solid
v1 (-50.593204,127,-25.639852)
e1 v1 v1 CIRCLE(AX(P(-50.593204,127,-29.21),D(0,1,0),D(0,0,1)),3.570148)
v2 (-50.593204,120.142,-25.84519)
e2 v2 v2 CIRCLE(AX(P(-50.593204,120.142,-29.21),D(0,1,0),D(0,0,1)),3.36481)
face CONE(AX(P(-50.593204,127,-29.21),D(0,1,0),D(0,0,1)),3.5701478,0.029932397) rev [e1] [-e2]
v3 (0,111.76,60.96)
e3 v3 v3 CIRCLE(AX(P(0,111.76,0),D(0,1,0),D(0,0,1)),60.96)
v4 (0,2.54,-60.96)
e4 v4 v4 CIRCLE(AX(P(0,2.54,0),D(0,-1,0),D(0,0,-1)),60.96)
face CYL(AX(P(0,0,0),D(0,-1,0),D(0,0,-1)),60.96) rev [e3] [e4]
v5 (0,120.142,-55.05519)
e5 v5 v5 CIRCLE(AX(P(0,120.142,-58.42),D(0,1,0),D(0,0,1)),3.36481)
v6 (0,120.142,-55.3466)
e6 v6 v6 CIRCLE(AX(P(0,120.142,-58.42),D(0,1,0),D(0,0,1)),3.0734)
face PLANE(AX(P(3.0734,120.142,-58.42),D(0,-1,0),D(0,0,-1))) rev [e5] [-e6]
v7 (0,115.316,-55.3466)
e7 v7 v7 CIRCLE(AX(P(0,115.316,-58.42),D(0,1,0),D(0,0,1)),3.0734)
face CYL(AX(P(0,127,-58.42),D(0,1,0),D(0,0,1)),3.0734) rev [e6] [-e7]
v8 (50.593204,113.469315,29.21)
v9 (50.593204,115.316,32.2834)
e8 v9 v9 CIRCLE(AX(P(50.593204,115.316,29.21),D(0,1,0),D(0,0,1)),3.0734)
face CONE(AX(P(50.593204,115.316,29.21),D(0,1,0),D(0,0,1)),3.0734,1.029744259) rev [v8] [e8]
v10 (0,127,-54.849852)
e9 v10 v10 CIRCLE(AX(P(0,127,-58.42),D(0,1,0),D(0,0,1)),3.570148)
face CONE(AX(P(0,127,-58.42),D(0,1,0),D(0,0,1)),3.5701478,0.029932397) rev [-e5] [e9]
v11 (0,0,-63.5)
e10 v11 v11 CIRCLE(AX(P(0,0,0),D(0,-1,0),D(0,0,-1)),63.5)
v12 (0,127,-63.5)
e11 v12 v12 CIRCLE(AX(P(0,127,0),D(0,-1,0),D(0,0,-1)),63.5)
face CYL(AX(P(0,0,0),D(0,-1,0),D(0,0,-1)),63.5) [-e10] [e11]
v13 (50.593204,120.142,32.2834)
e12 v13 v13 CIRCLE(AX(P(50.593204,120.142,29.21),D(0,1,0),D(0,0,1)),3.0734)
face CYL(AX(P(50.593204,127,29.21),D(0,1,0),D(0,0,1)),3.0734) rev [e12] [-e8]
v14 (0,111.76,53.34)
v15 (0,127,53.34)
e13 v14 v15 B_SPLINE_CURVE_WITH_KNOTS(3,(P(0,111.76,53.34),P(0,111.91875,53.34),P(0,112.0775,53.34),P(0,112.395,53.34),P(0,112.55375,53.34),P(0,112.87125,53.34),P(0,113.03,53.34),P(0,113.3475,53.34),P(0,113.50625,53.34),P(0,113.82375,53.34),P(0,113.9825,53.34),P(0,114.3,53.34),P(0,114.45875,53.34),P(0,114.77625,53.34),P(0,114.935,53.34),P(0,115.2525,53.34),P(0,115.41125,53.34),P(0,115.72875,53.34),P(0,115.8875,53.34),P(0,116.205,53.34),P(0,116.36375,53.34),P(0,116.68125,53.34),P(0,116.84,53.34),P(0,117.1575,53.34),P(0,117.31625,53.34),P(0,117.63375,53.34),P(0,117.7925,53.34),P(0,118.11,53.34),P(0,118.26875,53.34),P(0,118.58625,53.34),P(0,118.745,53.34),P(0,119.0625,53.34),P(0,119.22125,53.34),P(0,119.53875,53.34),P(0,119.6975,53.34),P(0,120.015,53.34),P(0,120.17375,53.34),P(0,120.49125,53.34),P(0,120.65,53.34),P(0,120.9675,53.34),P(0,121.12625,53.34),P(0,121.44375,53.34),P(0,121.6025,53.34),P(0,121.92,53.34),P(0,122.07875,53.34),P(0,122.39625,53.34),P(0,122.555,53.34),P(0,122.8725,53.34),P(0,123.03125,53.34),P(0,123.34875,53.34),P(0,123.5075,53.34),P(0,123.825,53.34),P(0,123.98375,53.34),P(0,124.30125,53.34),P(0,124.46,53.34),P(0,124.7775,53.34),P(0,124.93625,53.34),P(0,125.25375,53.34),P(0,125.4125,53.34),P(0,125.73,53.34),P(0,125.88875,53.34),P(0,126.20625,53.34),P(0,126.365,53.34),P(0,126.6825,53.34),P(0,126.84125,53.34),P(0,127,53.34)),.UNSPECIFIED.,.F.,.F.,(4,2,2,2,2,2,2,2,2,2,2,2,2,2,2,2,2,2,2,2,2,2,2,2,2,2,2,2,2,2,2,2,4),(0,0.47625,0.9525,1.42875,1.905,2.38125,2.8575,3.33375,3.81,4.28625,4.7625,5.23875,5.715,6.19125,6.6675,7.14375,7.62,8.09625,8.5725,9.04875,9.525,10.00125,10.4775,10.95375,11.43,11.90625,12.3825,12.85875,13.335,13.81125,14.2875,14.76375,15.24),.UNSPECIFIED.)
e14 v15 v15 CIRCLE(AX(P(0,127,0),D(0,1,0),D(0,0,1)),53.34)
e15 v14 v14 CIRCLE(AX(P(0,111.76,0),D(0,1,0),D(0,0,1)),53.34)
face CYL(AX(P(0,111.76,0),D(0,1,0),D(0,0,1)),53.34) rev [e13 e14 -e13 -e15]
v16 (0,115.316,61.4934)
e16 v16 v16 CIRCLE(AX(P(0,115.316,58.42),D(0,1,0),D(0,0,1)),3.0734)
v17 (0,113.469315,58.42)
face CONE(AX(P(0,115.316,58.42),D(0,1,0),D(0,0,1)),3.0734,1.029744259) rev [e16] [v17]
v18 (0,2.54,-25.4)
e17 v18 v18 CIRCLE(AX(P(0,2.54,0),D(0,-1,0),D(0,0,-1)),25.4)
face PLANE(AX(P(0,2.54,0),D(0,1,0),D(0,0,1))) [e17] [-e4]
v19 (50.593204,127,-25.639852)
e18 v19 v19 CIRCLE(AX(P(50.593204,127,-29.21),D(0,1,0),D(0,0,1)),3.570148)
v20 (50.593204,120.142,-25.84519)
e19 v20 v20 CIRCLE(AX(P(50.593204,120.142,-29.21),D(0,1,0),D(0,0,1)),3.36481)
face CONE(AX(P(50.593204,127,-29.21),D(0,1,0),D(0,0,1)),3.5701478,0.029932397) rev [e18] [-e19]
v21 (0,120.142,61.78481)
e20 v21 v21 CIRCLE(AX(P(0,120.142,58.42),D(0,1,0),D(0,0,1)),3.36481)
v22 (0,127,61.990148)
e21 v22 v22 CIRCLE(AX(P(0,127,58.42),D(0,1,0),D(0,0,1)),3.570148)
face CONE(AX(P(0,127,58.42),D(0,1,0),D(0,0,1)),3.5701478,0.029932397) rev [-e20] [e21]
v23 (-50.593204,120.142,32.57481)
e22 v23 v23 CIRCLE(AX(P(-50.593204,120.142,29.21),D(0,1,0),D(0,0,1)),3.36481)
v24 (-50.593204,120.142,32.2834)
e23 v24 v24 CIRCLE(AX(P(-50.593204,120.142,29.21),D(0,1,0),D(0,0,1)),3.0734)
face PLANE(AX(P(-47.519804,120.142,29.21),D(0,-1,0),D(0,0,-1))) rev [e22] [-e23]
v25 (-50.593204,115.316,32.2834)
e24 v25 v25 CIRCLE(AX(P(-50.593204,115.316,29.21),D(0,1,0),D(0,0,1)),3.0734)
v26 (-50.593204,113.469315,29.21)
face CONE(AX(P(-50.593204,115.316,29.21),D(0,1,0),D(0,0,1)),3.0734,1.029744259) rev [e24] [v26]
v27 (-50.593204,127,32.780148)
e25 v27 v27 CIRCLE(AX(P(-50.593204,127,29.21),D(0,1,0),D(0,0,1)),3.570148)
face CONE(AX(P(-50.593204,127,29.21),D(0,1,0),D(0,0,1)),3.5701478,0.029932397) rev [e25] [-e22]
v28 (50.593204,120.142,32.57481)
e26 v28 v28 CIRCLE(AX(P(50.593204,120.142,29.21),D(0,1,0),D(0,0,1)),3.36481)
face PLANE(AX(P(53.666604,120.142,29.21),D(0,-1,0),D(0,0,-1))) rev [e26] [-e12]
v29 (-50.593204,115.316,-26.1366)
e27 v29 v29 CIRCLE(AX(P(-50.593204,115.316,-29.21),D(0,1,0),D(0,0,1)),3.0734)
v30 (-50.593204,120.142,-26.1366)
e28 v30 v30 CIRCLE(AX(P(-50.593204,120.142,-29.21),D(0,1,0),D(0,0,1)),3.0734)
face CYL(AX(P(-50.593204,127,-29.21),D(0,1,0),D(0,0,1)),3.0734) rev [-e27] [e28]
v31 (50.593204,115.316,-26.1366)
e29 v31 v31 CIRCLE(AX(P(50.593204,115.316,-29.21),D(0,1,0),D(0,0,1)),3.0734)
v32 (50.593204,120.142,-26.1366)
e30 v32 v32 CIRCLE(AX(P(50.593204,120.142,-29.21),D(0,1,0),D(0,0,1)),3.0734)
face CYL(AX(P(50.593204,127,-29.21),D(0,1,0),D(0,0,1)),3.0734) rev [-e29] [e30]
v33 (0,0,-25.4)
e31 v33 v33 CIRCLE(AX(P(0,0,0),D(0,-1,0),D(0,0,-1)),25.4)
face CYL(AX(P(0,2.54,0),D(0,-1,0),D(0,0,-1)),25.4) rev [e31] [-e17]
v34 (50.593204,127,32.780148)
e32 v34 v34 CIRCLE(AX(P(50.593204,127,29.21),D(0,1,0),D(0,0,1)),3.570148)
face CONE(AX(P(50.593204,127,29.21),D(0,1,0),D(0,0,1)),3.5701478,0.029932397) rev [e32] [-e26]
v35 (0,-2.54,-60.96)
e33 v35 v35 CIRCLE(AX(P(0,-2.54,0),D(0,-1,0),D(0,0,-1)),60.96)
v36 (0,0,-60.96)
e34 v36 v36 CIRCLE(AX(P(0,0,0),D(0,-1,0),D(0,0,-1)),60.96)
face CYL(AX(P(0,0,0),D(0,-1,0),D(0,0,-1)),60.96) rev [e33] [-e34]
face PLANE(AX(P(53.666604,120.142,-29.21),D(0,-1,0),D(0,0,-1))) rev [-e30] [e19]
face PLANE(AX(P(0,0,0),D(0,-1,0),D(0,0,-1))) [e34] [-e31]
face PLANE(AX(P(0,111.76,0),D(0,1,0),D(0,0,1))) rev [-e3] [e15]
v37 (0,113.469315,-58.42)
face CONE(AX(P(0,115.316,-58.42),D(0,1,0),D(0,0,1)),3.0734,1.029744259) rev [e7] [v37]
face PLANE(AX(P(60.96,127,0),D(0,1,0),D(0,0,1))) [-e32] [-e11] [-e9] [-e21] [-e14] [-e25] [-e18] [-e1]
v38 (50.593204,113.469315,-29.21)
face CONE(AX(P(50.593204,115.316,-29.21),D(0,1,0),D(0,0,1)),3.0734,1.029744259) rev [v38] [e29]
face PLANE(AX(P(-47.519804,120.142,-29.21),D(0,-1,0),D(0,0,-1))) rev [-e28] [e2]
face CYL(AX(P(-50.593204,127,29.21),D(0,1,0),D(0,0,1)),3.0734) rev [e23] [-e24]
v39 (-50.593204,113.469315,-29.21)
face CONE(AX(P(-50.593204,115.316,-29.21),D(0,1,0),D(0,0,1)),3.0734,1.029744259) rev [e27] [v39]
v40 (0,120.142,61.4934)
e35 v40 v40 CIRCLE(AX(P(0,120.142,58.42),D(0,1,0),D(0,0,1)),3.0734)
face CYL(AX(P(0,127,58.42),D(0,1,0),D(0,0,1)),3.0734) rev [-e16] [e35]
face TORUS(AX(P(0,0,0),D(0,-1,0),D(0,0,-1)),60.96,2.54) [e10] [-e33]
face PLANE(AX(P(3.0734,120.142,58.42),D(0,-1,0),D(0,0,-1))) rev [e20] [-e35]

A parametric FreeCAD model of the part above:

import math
import FreeCAD as App
import Part
import Sketcher
Q = App.Units.Quantity


def add_polygon(sketch, points):
    """Adds a closed chain of lines whose ends are joined by coincident constraints."""
    first, n = sketch.GeometryCount, len(points)
    for a, b in zip(points, points[1:] + points[:1]):
        sketch.addGeometry(Part.LineSegment(App.Vector(*a, 0), App.Vector(*b, 0)), False)
    for i in range(n):
        sketch.addConstraint(Sketcher.Constraint("Coincident", first + i, 2, first + (i + 1) % n, 1))

doc = App.newDocument("Part")
body = doc.addObject("PartDesign::Body", "Body")

# Sketch on XY plane
sketch1 = body.newObject("Sketcher::SketchObject", "Sketch")
sketch1.AttachmentSupport = (doc.getObject("XY_Plane"), [""])
sketch1.MapMode = "FlatFace"
sketch1.addGeometry(Part.LineSegment(App.Vector(0, 0, 0), App.Vector(60.96, 0, 0)), False)
sketch1.addGeometry(Part.LineSegment(App.Vector(60.96, 0, 0), App.Vector(60.96, -2.54, 0)), False)
sketch1.addGeometry(Part.ArcOfCircle(Part.Circle(App.Vector(60.96, 0, 0), App.Vector(0, 0, 1), 2.54), math.radians(-90), math.radians(0)), False)
sketch1.addGeometry(Part.LineSegment(App.Vector(63.5, 0, 0), App.Vector(63.5, 127, 0)), False)
sketch1.addGeometry(Part.LineSegment(App.Vector(63.5, 127, 0), App.Vector(60.96, 127, 0)), False)
sketch1.addGeometry(Part.LineSegment(App.Vector(60.96, 127, 0), App.Vector(60.96, 2.54, 0)), False)
sketch1.addGeometry(Part.LineSegment(App.Vector(60.96, 2.54, 0), App.Vector(0, 2.54, 0)), False)
sketch1.addGeometry(Part.LineSegment(App.Vector(0, 2.54, 0), App.Vector(0, 0, 0)), False)
sketch1.addConstraint(Sketcher.Constraint("Coincident", 0, 2, 1, 1))
sketch1.addConstraint(Sketcher.Constraint("Coincident", 1, 2, 2, 1))
sketch1.addConstraint(Sketcher.Constraint("Tangent", 2, 2, 3, 1))
sketch1.addConstraint(Sketcher.Constraint("Coincident", 3, 2, 4, 1))
sketch1.addConstraint(Sketcher.Constraint("Coincident", 4, 2, 5, 1))
sketch1.addConstraint(Sketcher.Constraint("Coincident", 5, 2, 6, 1))
sketch1.addConstraint(Sketcher.Constraint("Coincident", 6, 2, 7, 1))
sketch1.addConstraint(Sketcher.Constraint("Coincident", 7, 2, 0, 1))
sketch1.addConstraint(Sketcher.Constraint("Horizontal", 0))
sketch1.addConstraint(Sketcher.Constraint("Vertical", 1))
sketch1.addConstraint(Sketcher.Constraint("Vertical", 3))
sketch1.addConstraint(Sketcher.Constraint("Horizontal", 4))
sketch1.addConstraint(Sketcher.Constraint("Vertical", 5))
sketch1.addConstraint(Sketcher.Constraint("Horizontal", 6))
sketch1.addConstraint(Sketcher.Constraint("Vertical", 7))
sketch1.addConstraint(Sketcher.Constraint("Coincident", 7, 2, -1, 1))
sketch1.addConstraint(Sketcher.Constraint("Coincident", 0, 2, 2, 3))
sketch1.addConstraint(Sketcher.Constraint("Symmetric", 1, 2, 5, 2, -1))
sketch1.addConstraint(Sketcher.Constraint("Radius", 2, Q("0.1 in")))
sketch1.addConstraint(Sketcher.Constraint("DistanceY", 3, 1, 3, 2, Q("5 in")))
sketch1.addConstraint(Sketcher.Constraint("DistanceX", 0, 1, 0, 2, Q("2.4 in")))
revolution = body.newObject("PartDesign::Revolution", "Revolution")
revolution.Profile = sketch1
revolution.ReferenceAxis = (sketch1, ["V_Axis"])
revolution.Angle = 360

# Sketch on XZ plane
sketch2 = body.newObject("Sketcher::SketchObject", "Sketch001")
sketch2.AttachmentSupport = (doc.getObject("XZ_Plane"), [""])
sketch2.MapMode = "FlatFace"
sketch2.AttachmentOffset = App.Placement(App.Vector(0, 0, -4.4 * 25.4), App.Rotation())
sketch2.addGeometry(Part.Circle(App.Vector(0, 0, 0), App.Vector(0, 0, 1), 60.96), False)
sketch2.addGeometry(Part.Circle(App.Vector(0, 0, 0), App.Vector(0, 0, 1), 53.34), False)
sketch2.addConstraint(Sketcher.Constraint("Coincident", 0, 3, -1, 1))
sketch2.addConstraint(Sketcher.Constraint("Coincident", 1, 3, -1, 1))
sketch2.addConstraint(Sketcher.Constraint("Diameter", 0, Q("4.8 in")))
sketch2.addConstraint(Sketcher.Constraint("Diameter", 1, Q("4.2 in")))
pad1 = body.newObject("PartDesign::Pad", "Pad")
pad1.Profile = sketch2
pad1.Length = Q("0.6 in")
pad1.Reversed = True

# Sketch on YZ plane
sketch3 = body.newObject("Sketcher::SketchObject", "Sketch002")
sketch3.AttachmentSupport = (doc.getObject("YZ_Plane"), [""])
sketch3.MapMode = "FlatFace"
add_polygon(sketch3, [(113.469315, -58.42), (127, -58.42), (127, -54.849852), (120.142, -55.05519), (120.142, -55.3466), (115.316, -55.3466)])  # lines 0-5
sketch3.addGeometry(Part.LineSegment(App.Vector(127, -58.42, 0), App.Vector(113.469315, -58.42, 0)), True)  # axis
sketch3.addConstraint(Sketcher.Constraint("Horizontal", 0))
sketch3.addConstraint(Sketcher.Constraint("Vertical", 1))
sketch3.addConstraint(Sketcher.Constraint("Vertical", 3))
sketch3.addConstraint(Sketcher.Constraint("Horizontal", 4))
sketch3.addConstraint(Sketcher.Constraint("Horizontal", 6))
sketch3.addConstraint(Sketcher.Constraint("Coincident", 6, 1, 0, 2))
sketch3.addConstraint(Sketcher.Constraint("Equal", 0, 6))
sketch3.addConstraint(Sketcher.Constraint("DistanceX", -1, 1, 0, 2, Q("5 in")))
sketch3.addConstraint(Sketcher.Constraint("Angle", 5, Q("-121 deg")))
sketch3.addConstraint(Sketcher.Constraint("DistanceX", 4, 2, 4, 1, Q("0.19 in")))
sketch3.addConstraint(Sketcher.Constraint("DistanceY", 0, 2, -1, 1, Q("2.3 in")))
sketch3.addConstraint(Sketcher.Constraint("DistanceX", -1, 1, 2, 2, Q("4.73 in")))
sketch3.addConstraint(Sketcher.Constraint("DistanceY", 3, 2, -1, 1, Q("2.179 in")))
sketch3.addConstraint(Sketcher.Constraint("DistanceY", 3, 2, 3, 1, 0.29141))
sketch3.addConstraint(Sketcher.Constraint("DistanceY", 1, 1, 1, 2, 3.570148))
groove = body.newObject("PartDesign::Groove", "Groove")
groove.Profile = sketch3
groove.ReferenceAxis = (sketch3, ["Axis0"])
groove.Angle = 360
doc.recompute()

datumline = body.newObject("PartDesign::Line", "DatumLine")
datumline.Placement = App.Placement(App.Vector(0, 0, 0), App.Rotation(App.Vector(0, 0, 1), App.Vector(-0.866025404, 0, 0.5)))
linearpattern = body.newObject("PartDesign::LinearPattern", "LinearPattern")
linearpattern.Originals = [groove]
linearpattern.Direction = (datumline, [""])
linearpattern.Mode = "offset"
linearpattern.Offset = Q("2.3 in")
linearpattern.Occurrences = 2
body.Tip = linearpattern
doc.recompute()

datumline2 = body.newObject("PartDesign::Line", "DatumLine001")
datumline2.Placement = App.Placement(App.Vector(0, 0, 0), App.Rotation(App.Vector(0, 0, 1), App.Vector(-0.5, 0, 0.866025404)))
linearpattern2 = body.newObject("PartDesign::LinearPattern", "LinearPattern001")
linearpattern2.Originals = [groove]
linearpattern2.Direction = (datumline2, [""])
linearpattern2.Mode = "offset"
linearpattern2.Offset = 101.186408
linearpattern2.Occurrences = 2
body.Tip = linearpattern2
doc.recompute()

linearpattern3 = body.newObject("PartDesign::LinearPattern", "LinearPattern002")
linearpattern3.Originals = [groove]
linearpattern3.Direction = (doc.getObject("Z_Axis"), [""])
linearpattern3.Mode = "offset"
linearpattern3.Offset = Q("4.6 in")
linearpattern3.Occurrences = 2
body.Tip = linearpattern3
doc.recompute()

datumline3 = body.newObject("PartDesign::Line", "DatumLine002")
datumline3.Placement = App.Placement(App.Vector(0, 0, 0), App.Rotation(App.Vector(0, 0, 1), App.Vector(0.5, 0, 0.866025404)))
linearpattern4 = body.newObject("PartDesign::LinearPattern", "LinearPattern003")
linearpattern4.Originals = [groove]
linearpattern4.Direction = (datumline3, [""])
linearpattern4.Mode = "offset"
linearpattern4.Offset = 101.186408
linearpattern4.Occurrences = 2
body.Tip = linearpattern4
doc.recompute()

datumline4 = body.newObject("PartDesign::Line", "DatumLine003")
datumline4.Placement = App.Placement(App.Vector(0, 0, 0), App.Rotation(App.Vector(0, 0, 1), App.Vector(0.866025404, 0, 0.5)))
linearpattern5 = body.newObject("PartDesign::LinearPattern", "LinearPattern004")
linearpattern5.Originals = [groove]
linearpattern5.Direction = (datumline4, [""])
linearpattern5.Mode = "offset"
linearpattern5.Offset = Q("2.3 in")
linearpattern5.Occurrences = 2
body.Tip = linearpattern5

# Sketch on XZ plane
sketch4 = body.newObject("Sketcher::SketchObject", "Sketch003")
sketch4.AttachmentSupport = (doc.getObject("XZ_Plane"), [""])
sketch4.MapMode = "FlatFace"
sketch4.addGeometry(Part.Circle(App.Vector(0, 0, 0), App.Vector(0, 0, 1), 25.4), False)
sketch4.addConstraint(Sketcher.Constraint("Coincident", 0, 3, -1, 1))
sketch4.addConstraint(Sketcher.Constraint("Diameter", 0, Q("2 in")))
pocket1 = body.newObject("PartDesign::Pocket", "Pocket")
pocket1.Profile = sketch4
pocket1.Length = Q("0.1 in")

doc.recompute()
